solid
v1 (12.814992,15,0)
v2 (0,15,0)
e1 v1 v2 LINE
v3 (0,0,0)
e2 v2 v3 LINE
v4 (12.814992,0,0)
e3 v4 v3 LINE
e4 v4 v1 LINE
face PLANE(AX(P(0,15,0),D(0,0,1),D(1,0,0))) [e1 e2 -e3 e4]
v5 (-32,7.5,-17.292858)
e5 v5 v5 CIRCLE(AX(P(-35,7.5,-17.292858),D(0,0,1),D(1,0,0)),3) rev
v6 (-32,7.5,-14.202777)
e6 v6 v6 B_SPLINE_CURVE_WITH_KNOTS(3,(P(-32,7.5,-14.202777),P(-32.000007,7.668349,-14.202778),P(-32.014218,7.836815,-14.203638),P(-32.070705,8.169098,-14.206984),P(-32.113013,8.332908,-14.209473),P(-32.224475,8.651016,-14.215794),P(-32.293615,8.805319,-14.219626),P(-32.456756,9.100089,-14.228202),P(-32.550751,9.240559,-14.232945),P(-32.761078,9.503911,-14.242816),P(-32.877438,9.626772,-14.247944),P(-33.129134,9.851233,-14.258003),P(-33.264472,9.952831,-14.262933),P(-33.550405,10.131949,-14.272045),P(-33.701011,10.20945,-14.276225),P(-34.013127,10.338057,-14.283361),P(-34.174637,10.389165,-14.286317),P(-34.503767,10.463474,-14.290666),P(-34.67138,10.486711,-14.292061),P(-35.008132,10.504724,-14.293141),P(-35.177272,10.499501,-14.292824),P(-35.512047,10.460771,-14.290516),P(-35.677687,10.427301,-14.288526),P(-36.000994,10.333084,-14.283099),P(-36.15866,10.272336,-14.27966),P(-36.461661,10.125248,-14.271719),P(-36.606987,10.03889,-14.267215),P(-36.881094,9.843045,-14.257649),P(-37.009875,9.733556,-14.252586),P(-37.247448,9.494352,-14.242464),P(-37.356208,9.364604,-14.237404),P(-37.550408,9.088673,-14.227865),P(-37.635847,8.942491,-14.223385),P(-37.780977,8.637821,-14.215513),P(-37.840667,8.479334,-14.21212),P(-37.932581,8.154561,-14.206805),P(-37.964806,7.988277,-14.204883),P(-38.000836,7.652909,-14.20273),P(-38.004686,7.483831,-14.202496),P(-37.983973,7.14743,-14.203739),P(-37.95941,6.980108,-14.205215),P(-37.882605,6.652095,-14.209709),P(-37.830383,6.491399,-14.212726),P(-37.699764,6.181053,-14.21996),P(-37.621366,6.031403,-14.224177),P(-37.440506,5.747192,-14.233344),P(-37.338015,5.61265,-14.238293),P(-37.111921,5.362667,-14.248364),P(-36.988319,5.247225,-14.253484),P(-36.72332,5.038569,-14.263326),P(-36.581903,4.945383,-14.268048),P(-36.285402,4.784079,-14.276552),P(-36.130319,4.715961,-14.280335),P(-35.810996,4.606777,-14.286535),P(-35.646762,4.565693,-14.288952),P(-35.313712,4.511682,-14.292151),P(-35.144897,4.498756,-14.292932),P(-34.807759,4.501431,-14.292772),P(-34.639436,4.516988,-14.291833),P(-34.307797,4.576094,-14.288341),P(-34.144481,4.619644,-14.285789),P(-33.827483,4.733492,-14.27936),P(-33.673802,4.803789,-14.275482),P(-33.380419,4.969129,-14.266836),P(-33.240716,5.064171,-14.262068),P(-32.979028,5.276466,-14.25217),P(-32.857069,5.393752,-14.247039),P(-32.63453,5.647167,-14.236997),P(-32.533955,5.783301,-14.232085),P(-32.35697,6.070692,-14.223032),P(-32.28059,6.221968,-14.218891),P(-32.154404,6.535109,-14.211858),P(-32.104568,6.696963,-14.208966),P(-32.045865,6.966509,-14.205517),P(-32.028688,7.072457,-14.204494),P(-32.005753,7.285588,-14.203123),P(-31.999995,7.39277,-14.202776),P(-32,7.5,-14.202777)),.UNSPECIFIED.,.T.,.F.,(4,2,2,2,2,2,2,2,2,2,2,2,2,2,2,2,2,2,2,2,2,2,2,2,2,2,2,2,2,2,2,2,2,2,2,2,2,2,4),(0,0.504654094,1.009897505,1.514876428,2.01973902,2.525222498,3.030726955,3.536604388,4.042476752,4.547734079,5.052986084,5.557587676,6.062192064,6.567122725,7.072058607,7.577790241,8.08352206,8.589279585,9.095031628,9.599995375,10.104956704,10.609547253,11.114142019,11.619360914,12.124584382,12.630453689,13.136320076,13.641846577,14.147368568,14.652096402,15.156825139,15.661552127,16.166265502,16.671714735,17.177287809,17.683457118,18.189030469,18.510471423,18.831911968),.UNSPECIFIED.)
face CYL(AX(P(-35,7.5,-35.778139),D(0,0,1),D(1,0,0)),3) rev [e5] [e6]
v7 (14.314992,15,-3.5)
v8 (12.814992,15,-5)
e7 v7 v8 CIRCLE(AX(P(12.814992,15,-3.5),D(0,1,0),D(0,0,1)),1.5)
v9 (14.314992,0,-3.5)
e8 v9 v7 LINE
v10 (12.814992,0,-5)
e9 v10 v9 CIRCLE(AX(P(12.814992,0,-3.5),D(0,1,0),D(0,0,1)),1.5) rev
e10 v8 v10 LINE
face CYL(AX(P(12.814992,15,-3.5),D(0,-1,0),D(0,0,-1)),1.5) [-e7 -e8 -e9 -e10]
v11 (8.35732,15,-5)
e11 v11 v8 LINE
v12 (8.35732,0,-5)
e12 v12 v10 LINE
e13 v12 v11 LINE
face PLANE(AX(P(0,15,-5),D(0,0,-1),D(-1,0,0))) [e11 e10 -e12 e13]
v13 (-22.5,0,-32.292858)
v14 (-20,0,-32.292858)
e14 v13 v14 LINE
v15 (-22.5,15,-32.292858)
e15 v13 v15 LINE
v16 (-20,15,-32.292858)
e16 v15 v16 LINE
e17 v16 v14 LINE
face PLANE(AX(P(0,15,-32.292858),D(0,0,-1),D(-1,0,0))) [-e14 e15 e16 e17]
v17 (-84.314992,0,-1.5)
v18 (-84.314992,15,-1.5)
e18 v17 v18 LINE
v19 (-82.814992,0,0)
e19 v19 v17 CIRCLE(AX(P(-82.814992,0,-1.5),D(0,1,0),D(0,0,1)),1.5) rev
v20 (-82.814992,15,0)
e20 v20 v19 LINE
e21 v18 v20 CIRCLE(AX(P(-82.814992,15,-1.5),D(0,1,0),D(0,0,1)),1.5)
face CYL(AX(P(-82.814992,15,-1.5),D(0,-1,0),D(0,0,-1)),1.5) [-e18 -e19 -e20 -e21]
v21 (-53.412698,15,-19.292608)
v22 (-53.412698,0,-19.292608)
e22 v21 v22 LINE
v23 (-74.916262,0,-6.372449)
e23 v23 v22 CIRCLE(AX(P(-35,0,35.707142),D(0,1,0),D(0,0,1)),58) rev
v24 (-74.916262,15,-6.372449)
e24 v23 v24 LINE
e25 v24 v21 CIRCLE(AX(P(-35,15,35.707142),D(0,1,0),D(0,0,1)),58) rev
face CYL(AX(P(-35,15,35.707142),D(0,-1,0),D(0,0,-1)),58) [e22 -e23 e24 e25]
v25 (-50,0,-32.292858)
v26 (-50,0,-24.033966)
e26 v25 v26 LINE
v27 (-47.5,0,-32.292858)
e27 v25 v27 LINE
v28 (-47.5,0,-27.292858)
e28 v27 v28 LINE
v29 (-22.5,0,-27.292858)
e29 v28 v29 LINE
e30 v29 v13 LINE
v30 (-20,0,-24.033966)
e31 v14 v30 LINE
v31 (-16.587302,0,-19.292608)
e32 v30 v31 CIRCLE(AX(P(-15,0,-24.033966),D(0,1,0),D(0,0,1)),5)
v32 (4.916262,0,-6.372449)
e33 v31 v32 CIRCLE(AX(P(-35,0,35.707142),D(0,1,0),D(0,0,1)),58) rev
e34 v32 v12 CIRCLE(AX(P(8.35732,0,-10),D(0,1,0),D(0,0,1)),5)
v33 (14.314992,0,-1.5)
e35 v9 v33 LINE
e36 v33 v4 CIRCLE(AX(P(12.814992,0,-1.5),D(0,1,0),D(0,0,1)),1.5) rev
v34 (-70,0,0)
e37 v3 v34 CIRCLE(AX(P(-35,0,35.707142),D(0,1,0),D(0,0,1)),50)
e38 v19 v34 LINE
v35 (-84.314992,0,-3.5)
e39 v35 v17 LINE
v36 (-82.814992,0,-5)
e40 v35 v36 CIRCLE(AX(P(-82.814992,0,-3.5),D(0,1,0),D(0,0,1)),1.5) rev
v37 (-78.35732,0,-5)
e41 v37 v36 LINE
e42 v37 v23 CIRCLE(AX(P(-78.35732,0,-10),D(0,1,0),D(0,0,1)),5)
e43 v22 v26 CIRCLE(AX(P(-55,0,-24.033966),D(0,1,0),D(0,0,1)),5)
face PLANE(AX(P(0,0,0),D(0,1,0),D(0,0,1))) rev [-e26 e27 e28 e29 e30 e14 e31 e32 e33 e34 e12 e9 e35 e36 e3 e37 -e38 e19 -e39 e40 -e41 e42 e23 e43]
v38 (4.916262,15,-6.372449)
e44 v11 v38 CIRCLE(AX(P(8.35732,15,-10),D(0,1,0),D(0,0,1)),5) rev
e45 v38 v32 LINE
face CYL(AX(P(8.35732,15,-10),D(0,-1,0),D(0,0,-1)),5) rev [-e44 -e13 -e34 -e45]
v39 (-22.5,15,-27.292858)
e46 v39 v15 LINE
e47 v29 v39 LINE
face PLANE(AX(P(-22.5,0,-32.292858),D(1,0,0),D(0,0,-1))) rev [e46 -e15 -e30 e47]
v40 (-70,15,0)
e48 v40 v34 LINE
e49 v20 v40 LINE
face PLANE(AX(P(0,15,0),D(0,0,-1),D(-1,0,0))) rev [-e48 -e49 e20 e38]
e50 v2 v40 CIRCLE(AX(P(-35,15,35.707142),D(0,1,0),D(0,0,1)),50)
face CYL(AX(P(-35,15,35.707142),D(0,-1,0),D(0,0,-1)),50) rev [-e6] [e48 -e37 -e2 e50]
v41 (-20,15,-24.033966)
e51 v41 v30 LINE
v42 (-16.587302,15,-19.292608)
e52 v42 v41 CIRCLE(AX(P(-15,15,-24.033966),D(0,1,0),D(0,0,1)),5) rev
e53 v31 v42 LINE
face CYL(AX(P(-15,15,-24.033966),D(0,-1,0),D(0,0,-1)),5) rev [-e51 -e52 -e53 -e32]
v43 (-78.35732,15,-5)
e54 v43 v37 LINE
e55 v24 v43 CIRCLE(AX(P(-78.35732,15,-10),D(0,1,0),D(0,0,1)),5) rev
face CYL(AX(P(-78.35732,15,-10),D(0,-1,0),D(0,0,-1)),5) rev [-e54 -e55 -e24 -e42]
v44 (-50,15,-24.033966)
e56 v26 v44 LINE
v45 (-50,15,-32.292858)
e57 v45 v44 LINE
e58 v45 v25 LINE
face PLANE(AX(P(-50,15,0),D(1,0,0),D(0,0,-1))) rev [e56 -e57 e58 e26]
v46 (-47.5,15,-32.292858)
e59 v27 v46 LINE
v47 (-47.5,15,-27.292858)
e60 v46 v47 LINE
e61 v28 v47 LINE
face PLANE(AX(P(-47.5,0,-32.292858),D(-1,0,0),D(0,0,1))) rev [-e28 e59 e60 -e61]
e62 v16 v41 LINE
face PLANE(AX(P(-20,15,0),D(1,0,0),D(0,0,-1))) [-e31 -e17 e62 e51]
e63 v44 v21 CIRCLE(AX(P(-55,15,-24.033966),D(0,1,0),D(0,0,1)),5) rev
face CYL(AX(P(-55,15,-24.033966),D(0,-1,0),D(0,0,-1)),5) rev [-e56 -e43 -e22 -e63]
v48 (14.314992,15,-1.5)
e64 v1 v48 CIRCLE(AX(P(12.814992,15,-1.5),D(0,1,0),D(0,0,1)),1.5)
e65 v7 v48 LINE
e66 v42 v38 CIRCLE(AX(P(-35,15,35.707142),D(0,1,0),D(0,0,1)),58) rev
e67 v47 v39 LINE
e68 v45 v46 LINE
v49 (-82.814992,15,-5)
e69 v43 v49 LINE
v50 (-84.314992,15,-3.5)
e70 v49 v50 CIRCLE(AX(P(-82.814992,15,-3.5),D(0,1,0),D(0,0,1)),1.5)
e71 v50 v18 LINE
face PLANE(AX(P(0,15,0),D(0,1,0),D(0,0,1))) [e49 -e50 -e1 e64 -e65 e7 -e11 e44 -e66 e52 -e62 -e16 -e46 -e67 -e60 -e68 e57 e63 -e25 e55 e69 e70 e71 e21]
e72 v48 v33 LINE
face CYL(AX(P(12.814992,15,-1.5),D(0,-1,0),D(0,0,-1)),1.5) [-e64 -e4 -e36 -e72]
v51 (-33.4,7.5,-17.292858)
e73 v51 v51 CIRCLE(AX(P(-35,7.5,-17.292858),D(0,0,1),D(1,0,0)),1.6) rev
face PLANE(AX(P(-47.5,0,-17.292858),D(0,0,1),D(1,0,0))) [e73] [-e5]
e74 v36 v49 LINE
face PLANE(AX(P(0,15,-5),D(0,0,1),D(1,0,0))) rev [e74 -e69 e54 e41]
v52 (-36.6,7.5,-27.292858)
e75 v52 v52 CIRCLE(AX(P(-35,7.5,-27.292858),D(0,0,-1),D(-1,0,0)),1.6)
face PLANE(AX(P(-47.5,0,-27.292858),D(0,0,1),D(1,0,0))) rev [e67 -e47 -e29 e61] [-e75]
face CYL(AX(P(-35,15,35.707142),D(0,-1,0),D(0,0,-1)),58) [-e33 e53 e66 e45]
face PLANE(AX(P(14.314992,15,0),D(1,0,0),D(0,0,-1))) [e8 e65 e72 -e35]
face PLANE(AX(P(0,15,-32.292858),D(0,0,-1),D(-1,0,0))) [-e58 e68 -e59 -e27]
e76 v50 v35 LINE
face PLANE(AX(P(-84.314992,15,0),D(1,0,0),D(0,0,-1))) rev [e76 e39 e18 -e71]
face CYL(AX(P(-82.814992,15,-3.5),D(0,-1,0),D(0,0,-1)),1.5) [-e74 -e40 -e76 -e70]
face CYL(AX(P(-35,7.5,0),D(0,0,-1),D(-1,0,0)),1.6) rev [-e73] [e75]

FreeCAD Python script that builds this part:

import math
import FreeCAD as App
import Part
import Sketcher
Q = App.Units.Quantity


def edges_at(feature, points):
    """Names of the edges that pass closest to the given points."""
    edges = feature.Shape.Edges
    near = lambda p: min(range(len(edges)), key=lambda i: edges[i].distToShape(Part.Vertex(*p))[0])
    return sorted({f"Edge{near(p) + 1}" for p in points})

doc = App.newDocument("Part")
params = doc.addObject("Spreadsheet::Sheet", "Params")
for row, (alias, value) in enumerate([
    ("sketch1_radius", "58 mm"),
    ("sketch1_radius2", "50 mm"),
    ("sketch1_width", "8 mm"),
    ("sketch1_width2", "30 mm"),
    ("sketch1_height", "5 mm"),
    ("pad1_length", "15 mm"),
    ("fillet_radius", "5 mm"),
    ("fillet2_radius", "1.5 mm"),
    ("sketch2_width", "25 mm"),
    ("sketch2_height", "5 mm"),
    ("sketch3_diameter", "3.2 mm"),
    ("sketch4_diameter", "6 mm"),
    ("pocket3_length", "17.292858 mm"),
], start=1):
    params.set(f"A{row}", alias)
    params.set(f"B{row}", "=" + value)
    params.setAlias(f"B{row}", alias)

body = doc.addObject("PartDesign::Body", "Body")

# Sketch on XZ plane
sketch1 = doc.addObject("Sketcher::SketchObject", "Sketch")
body.addObject(sketch1)
sketch1.AttachmentSupport = (doc.XZ_Plane, [""])
sketch1.MapMode = "FlatFace"
sketch1.addGeometry([
    Part.ArcOfCircle(Part.Circle(App.Vector(-35, 36, 0), App.Vector(0, 0, 1), 58), math.radians(-135), math.radians(-105)),  # 0
    Part.LineSegment(App.Vector(-76, -5, 0), App.Vector(-84, -5, 0)),  # 1
    Part.LineSegment(App.Vector(-84, -5, 0), App.Vector(-84, 0, 0)),  # 2
    Part.LineSegment(App.Vector(-84, 0, 0), App.Vector(-70, 0, 0)),  # 3
    Part.ArcOfCircle(Part.Circle(App.Vector(-35, 36, 0), App.Vector(0, 0, 1), 50), math.radians(-134), math.radians(-46)),  # 4
    Part.LineSegment(App.Vector(0, 0, 0), App.Vector(14, 0, 0)),  # 5
    Part.LineSegment(App.Vector(14, 0, 0), App.Vector(14, -5, 0)),  # 6
    Part.LineSegment(App.Vector(14, -5, 0), App.Vector(6, -5, 0)),  # 7
    Part.ArcOfCircle(Part.Circle(App.Vector(-35, 36, 0), App.Vector(0, 0, 1), 58), math.radians(-75), math.radians(-45)),  # 8
    Part.LineSegment(App.Vector(-20, -20, 0), App.Vector(-20, -32, 0)),  # 9
    Part.LineSegment(App.Vector(-20, -32, 0), App.Vector(-50, -32, 0)),  # 10
    Part.LineSegment(App.Vector(-50, -32, 0), App.Vector(-50, -20, 0)),  # 11
], False)
sketch1.addConstraint([
    Sketcher.Constraint("Coincident", 0, 1, 1, 1),
    Sketcher.Constraint("Coincident", 1, 2, 2, 1),
    Sketcher.Constraint("Coincident", 2, 2, 3, 1),
    Sketcher.Constraint("Coincident", 3, 2, 4, 1),
    Sketcher.Constraint("Coincident", 4, 2, 5, 1),
    Sketcher.Constraint("Coincident", 5, 2, 6, 1),
    Sketcher.Constraint("Coincident", 6, 2, 7, 1),
    Sketcher.Constraint("Coincident", 7, 2, 8, 2),
    Sketcher.Constraint("Coincident", 8, 1, 9, 1),
    Sketcher.Constraint("Coincident", 9, 2, 10, 1),
    Sketcher.Constraint("Coincident", 10, 2, 11, 1),
    Sketcher.Constraint("Coincident", 11, 2, 0, 2),
    Sketcher.Constraint("Horizontal", 1),
    Sketcher.Constraint("Vertical", 2),
    Sketcher.Constraint("Horizontal", 3),
    Sketcher.Constraint("Horizontal", 5),
    Sketcher.Constraint("Vertical", 6),
    Sketcher.Constraint("Horizontal", 7),
    Sketcher.Constraint("Vertical", 9),
    Sketcher.Constraint("Horizontal", 10),
    Sketcher.Constraint("Vertical", 11),
    Sketcher.Constraint("Coincident", 4, 2, -1, 1),
    Sketcher.Constraint("Coincident", 4, 3, 0, 3),
    Sketcher.Constraint("Coincident", 8, 3, 0, 3),
    Sketcher.Constraint("Equal", 0, 8),
    Sketcher.Constraint("PointOnObject", 2, 2, -1),
    Sketcher.Constraint("Horizontal", 1, 2, 6, 2),
    Sketcher.Constraint("Horizontal", 8, 1, 11, 2),
    Sketcher.Constraint("Equal", 3, 5),
    Sketcher.Constraint("Radius", 0, Q("58 mm")),
    Sketcher.Constraint("Radius", 4, Q("50 mm")),
    Sketcher.Constraint("DistanceX", 1, 2, 1, 1, Q("8 mm")),
    Sketcher.Constraint("DistanceX", 10, 2, 10, 1, Q("30 mm")),
    Sketcher.Constraint("DistanceY", 2, 1, 2, 2, Q("5 mm")),
    Sketcher.Constraint("DistanceX", 0, 3, -1, 1, Q("35 mm")),
    Sketcher.Constraint("DistanceY", 9, 2, 9, 1, Q("11.973221 mm")),
])
sketch1.setExpression("Constraints[29]", "Params.sketch1_radius")
sketch1.setExpression("Constraints[30]", "Params.sketch1_radius2")
sketch1.setExpression("Constraints[31]", "Params.sketch1_width")
sketch1.setExpression("Constraints[32]", "Params.sketch1_width2")
sketch1.setExpression("Constraints[33]", "Params.sketch1_height")
pad1 = doc.addObject("PartDesign::Pad", "Pad")
body.addObject(pad1)
pad1.Profile = sketch1
pad1.setExpression("Length", "Params.pad1_length")
pad1.Reversed = True
doc.recompute()

fillet = doc.addObject("PartDesign::Fillet", "Fillet")
body.addObject(fillet)
fillet.Base = (pad1, edges_at(pad1, [
    (-50, 7.5, -20.32),
    (-20, 7.5, -20.32),
    (6.315, 7.5, -5),
    (-76.315, 7.5, -5),
]))
fillet.setExpression("Radius", "Params.fillet_radius")
doc.recompute()

fillet2 = doc.addObject("PartDesign::Fillet", "Fillet001")
body.addObject(fillet2)
fillet2.Base = (fillet, edges_at(fillet, [
    (14.315, 7.5, -5),
    (14.315, 7.5, 0),
    (-84.315, 7.5, 0),
    (-84.315, 7.5, -5),
]))
fillet2.setExpression("Radius", "Params.fillet2_radius")

# Sketch on XZ plane
sketch2 = doc.addObject("Sketcher::SketchObject", "Sketch001")
body.addObject(sketch2)
sketch2.AttachmentSupport = (doc.XZ_Plane, [""])
sketch2.MapMode = "FlatFace"
sketch2.AttachmentOffset = App.Placement(App.Vector(0, 0, -15), App.Rotation())
sketch2.addGeometry([
    Part.LineSegment(App.Vector(-48, -32, 0), App.Vector(-48, -27, 0)),
    Part.LineSegment(App.Vector(-48, -27, 0), App.Vector(-22, -27, 0)),
    Part.LineSegment(App.Vector(-22, -27, 0), App.Vector(-22, -32, 0)),
    Part.LineSegment(App.Vector(-22, -32, 0), App.Vector(-48, -32, 0)),
], False)
sketch2.addConstraint([
    Sketcher.Constraint("Coincident", 0, 2, 1, 1),
    Sketcher.Constraint("Coincident", 1, 2, 2, 1),
    Sketcher.Constraint("Coincident", 2, 2, 3, 1),
    Sketcher.Constraint("Coincident", 3, 2, 0, 1),
    Sketcher.Constraint("Vertical", 0),
    Sketcher.Constraint("Horizontal", 1),
    Sketcher.Constraint("Vertical", 2),
    Sketcher.Constraint("Horizontal", 3),
    Sketcher.Constraint("DistanceX", 1, 1, 1, 2, Q("25 mm")),
    Sketcher.Constraint("DistanceY", 0, 1, 0, 2, Q("5 mm")),
    Sketcher.Constraint("DistanceX", 0, 2, -1, 1, Q("47.5 mm")),
    Sketcher.Constraint("DistanceY", 0, 2, -1, 1, Q("27.292858 mm")),
])
sketch2.setExpression("Constraints[8]", "Params.sketch2_width")
sketch2.setExpression("Constraints[9]", "Params.sketch2_height")
pocket1 = doc.addObject("PartDesign::Pocket", "Pocket")
body.addObject(pocket1)
pocket1.Profile = sketch2
pocket1.Type = "ThroughAll"
pocket1.Reversed = True

# Sketch on XY plane
sketch3 = doc.addObject("Sketcher::SketchObject", "Sketch002")
body.addObject(sketch3)
sketch3.AttachmentSupport = (doc.XY_Plane, [""])
sketch3.MapMode = "FlatFace"
sketch3.AttachmentOffset = App.Placement(App.Vector(0, 0, -27.292858), App.Rotation())
sketch3.addGeometry(Part.Circle(App.Vector(-35, 7.5, 0), App.Vector(0, 0, 1), 1.6), False)
sketch3.addConstraint([
    Sketcher.Constraint("Diameter", 0, Q("3.2 mm")),
    Sketcher.Constraint("DistanceX", 0, 3, -1, 1, Q("35 mm")),
    Sketcher.Constraint("DistanceY", -1, 1, 0, 3, Q("7.5 mm")),
])
sketch3.setExpression("Constraints[0]", "Params.sketch3_diameter")
pocket2 = doc.addObject("PartDesign::Pocket", "Pocket001")
body.addObject(pocket2)
pocket2.Profile = sketch3
pocket2.Type = "ThroughAll"
pocket2.Reversed = True

# Sketch on XY plane
sketch4 = doc.addObject("Sketcher::SketchObject", "Sketch003")
body.addObject(sketch4)
sketch4.AttachmentSupport = (doc.XY_Plane, [""])
sketch4.MapMode = "FlatFace"
sketch4.addGeometry(Part.Circle(App.Vector(-35, 7.5, 0), App.Vector(0, 0, 1), 3), False)
sketch4.addConstraint([
    Sketcher.Constraint("Diameter", 0, Q("6 mm")),
    Sketcher.Constraint("DistanceX", 0, 3, -1, 1, Q("35 mm")),
    Sketcher.Constraint("DistanceY", -1, 1, 0, 3, Q("7.5 mm")),
])
sketch4.setExpression("Constraints[0]", "Params.sketch4_diameter")
pocket3 = doc.addObject("PartDesign::Pocket", "Pocket002")
body.addObject(pocket3)
pocket3.Profile = sketch4
pocket3.setExpression("Length", "Params.pocket3_length")

doc.recompute()
